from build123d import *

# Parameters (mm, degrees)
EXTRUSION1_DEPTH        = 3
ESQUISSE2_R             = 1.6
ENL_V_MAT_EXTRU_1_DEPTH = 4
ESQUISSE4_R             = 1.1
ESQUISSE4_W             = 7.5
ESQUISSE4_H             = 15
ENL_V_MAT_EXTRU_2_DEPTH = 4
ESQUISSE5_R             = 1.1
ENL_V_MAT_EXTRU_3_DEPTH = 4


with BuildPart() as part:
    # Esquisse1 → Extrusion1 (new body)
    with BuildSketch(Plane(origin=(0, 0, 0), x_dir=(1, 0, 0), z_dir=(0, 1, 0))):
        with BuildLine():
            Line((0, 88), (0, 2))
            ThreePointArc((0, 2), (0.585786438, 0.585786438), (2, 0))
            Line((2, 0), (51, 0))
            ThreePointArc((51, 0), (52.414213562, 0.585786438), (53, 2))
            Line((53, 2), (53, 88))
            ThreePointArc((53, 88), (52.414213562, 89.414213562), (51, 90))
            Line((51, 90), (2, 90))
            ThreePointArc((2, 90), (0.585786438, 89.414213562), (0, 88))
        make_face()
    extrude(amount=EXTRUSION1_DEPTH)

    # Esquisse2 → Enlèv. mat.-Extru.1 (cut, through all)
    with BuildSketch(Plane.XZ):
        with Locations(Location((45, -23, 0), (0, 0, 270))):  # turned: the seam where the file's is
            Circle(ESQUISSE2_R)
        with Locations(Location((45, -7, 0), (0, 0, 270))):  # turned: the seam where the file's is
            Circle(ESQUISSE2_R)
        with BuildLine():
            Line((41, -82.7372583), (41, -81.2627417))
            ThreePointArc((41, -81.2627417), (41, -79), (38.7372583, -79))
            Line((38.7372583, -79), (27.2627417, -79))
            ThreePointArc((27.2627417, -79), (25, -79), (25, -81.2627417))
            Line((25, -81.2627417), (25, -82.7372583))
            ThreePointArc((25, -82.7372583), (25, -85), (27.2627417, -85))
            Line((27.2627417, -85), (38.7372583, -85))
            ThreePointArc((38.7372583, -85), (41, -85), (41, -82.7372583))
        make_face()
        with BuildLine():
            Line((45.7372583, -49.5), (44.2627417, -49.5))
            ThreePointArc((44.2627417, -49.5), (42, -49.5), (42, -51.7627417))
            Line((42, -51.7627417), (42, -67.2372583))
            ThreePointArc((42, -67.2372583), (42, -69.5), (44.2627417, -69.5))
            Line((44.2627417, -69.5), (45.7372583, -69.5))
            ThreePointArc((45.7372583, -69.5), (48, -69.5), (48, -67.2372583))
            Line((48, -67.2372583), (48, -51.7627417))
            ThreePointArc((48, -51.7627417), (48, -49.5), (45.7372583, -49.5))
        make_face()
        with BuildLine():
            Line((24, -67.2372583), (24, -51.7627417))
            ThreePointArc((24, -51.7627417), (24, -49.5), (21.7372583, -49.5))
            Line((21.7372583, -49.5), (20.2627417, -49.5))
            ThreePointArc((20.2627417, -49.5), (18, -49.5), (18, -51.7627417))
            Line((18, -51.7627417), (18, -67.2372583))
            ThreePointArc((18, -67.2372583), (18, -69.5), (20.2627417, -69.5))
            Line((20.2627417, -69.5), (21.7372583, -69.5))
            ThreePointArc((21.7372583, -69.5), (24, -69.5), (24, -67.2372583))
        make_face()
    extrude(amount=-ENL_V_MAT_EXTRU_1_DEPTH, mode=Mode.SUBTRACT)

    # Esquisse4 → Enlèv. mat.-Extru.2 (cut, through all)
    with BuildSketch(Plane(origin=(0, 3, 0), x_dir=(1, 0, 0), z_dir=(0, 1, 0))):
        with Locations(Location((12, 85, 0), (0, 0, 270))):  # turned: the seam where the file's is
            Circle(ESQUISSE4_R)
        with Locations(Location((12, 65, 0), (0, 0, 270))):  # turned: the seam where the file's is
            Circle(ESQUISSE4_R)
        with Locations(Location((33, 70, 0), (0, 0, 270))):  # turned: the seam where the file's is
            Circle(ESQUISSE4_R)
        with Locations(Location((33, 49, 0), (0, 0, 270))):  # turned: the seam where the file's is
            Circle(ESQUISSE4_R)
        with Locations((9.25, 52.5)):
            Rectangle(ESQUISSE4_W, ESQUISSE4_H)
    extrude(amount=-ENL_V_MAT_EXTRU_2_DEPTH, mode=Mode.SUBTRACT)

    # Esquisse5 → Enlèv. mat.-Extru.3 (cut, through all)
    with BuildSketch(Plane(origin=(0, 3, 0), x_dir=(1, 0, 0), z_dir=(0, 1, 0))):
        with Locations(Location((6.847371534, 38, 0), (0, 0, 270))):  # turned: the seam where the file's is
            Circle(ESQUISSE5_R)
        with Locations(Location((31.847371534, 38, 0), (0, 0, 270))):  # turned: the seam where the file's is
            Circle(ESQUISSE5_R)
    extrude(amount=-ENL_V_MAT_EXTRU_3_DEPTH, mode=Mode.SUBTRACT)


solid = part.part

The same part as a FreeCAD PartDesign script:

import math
import FreeCAD as App
import Part
import Sketcher
from FreeCAD import Vector


def add_polygon(sketch, points):
    """Adds a closed chain of lines whose ends are joined by coincident constraints."""
    first, n = sketch.GeometryCount, len(points)
    for a, b in zip(points, points[1:] + points[:1]):
        sketch.addGeometry(Part.LineSegment(App.Vector(*a, 0), App.Vector(*b, 0)), False)
    for i in range(n):
        sketch.addConstraint(Sketcher.Constraint("Coincident", first + i, 2, first + (i + 1) % n, 1))

doc = App.newDocument("Part")
body = doc.addObject("PartDesign::Body", "Body")

sketch1 = body.newObject("Sketcher::SketchObject", "Sketch")
sketch1.AttachmentSupport = (doc.getObject("XZ_Plane"), [""])
sketch1.MapMode = "FlatFace"
sketch1.addGeometry([
    Part.LineSegment(Vector(0, -88, 0), Vector(0, -2, 0)),
    Part.ArcOfCircle(Part.Circle(Vector(2, -2, 0), Vector(0, 0, 1), 2), math.radians(90), math.radians(180)),
    Part.LineSegment(Vector(2, 0, 0), Vector(51, 0, 0)),
    Part.ArcOfCircle(Part.Circle(Vector(51, -2, 0), Vector(0, 0, 1), 2), math.radians(0), math.radians(90)),
    Part.LineSegment(Vector(53, -2, 0), Vector(53, -88, 0)),
    Part.ArcOfCircle(Part.Circle(Vector(51, -88, 0), Vector(0, 0, 1), 2), math.radians(-90), math.radians(0)),
    Part.LineSegment(Vector(51, -90, 0), Vector(2, -90, 0)),
    Part.ArcOfCircle(Part.Circle(Vector(2, -88, 0), Vector(0, 0, 1), 2), math.radians(-180), math.radians(-90)),
], False)
sketch1.addConstraint([
    Sketcher.Constraint("Tangent", 0, 2, 1, 2),
    Sketcher.Constraint("Tangent", 1, 1, 2, 1),
    Sketcher.Constraint("Tangent", 2, 2, 3, 2),
    Sketcher.Constraint("Tangent", 3, 1, 4, 1),
    Sketcher.Constraint("Tangent", 4, 2, 5, 2),
    Sketcher.Constraint("Tangent", 5, 1, 6, 1),
    Sketcher.Constraint("Tangent", 6, 2, 7, 2),
    Sketcher.Constraint("Tangent", 7, 1, 0, 1),
    Sketcher.Constraint("Vertical", 0),
    Sketcher.Constraint("Horizontal", 2),
    Sketcher.Constraint("Vertical", 4),
    Sketcher.Constraint("Horizontal", 6),
    Sketcher.Constraint("Equal", 1, 3),
    Sketcher.Constraint("Equal", 3, 5),
    Sketcher.Constraint("Equal", 5, 7),
    Sketcher.Constraint("PointOnObject", 0, 2, -2),
    Sketcher.Constraint("PointOnObject", 1, 1, -1),
    Sketcher.Constraint("Radius", 1, 2.0),
    Sketcher.Constraint("DistanceX", 2, 1, 2, 2, 49.0),
    Sketcher.Constraint("DistanceY", 0, 1, 0, 2, 86.0),
])
pad1 = body.newObject("PartDesign::Pad", "Pad")
pad1.Profile = sketch1
pad1.Length = 3
pad1.Reversed = True

sketch2 = body.newObject("Sketcher::SketchObject", "Sketch001")
sketch2.AttachmentSupport = (doc.getObject("XZ_Plane"), [""])
sketch2.MapMode = "FlatFace"
sketch2.addGeometry([
    Part.Circle(Vector(45, -23, 0), Vector(0, 0, 1), 1.6),
    Part.Circle(Vector(45, -7, 0), Vector(0, 0, 1), 1.6),
    Part.LineSegment(Vector(41, -82.7, 0), Vector(41, -81.3, 0)),
    Part.ArcOfCircle(Part.Circle(Vector(39.9, -80.1, 0), Vector(0, 0, 1), 1.6), math.radians(-45), math.radians(135)),
    Part.LineSegment(Vector(38.7, -79, 0), Vector(27.3, -79, 0)),
    Part.ArcOfCircle(Part.Circle(Vector(26.1, -80.1, 0), Vector(0, 0, 1), 1.6), math.radians(45), math.radians(225)),
    Part.LineSegment(Vector(25, -81.3, 0), Vector(25, -82.7, 0)),
    Part.ArcOfCircle(Part.Circle(Vector(26.1, -83.9, 0), Vector(0, 0, 1), 1.6), math.radians(135), math.radians(315)),
    Part.LineSegment(Vector(27.3, -85, 0), Vector(38.7, -85, 0)),
    Part.ArcOfCircle(Part.Circle(Vector(39.9, -83.9, 0), Vector(0, 0, 1), 1.6), math.radians(-135), math.radians(45)),
    Part.LineSegment(Vector(45.7, -49.5, 0), Vector(44.3, -49.5, 0)),
    Part.ArcOfCircle(Part.Circle(Vector(43.1, -50.6, 0), Vector(0, 0, 1), 1.6), math.radians(45), math.radians(225)),
    Part.LineSegment(Vector(42, -51.8, 0), Vector(42, -67.2, 0)),
    Part.ArcOfCircle(Part.Circle(Vector(43.1, -68.4, 0), Vector(0, 0, 1), 1.6), math.radians(135), math.radians(315)),
    Part.LineSegment(Vector(44.3, -69.5, 0), Vector(45.7, -69.5, 0)),
    Part.ArcOfCircle(Part.Circle(Vector(46.9, -68.4, 0), Vector(0, 0, 1), 1.6), math.radians(-135), math.radians(45)),
    Part.LineSegment(Vector(48, -67.2, 0), Vector(48, -51.8, 0)),
    Part.ArcOfCircle(Part.Circle(Vector(46.9, -50.6, 0), Vector(0, 0, 1), 1.6), math.radians(-45), math.radians(135)),
    Part.LineSegment(Vector(24, -67.2, 0), Vector(24, -51.8, 0)),
    Part.ArcOfCircle(Part.Circle(Vector(22.9, -50.6, 0), Vector(0, 0, 1), 1.6), math.radians(-45), math.radians(135)),
    Part.LineSegment(Vector(21.7, -49.5, 0), Vector(20.3, -49.5, 0)),
    Part.ArcOfCircle(Part.Circle(Vector(19.1, -50.6, 0), Vector(0, 0, 1), 1.6), math.radians(45), math.radians(225)),
    Part.LineSegment(Vector(18, -51.8, 0), Vector(18, -67.2, 0)),
    Part.ArcOfCircle(Part.Circle(Vector(19.1, -68.4, 0), Vector(0, 0, 1), 1.6), math.radians(135), math.radians(315)),
    Part.LineSegment(Vector(20.3, -69.5, 0), Vector(21.7, -69.5, 0)),
    Part.ArcOfCircle(Part.Circle(Vector(22.9, -68.4, 0), Vector(0, 0, 1), 1.6), math.radians(-135), math.radians(45)),
], False)
sketch2.addConstraint([
    Sketcher.Constraint("Coincident", 2, 2, 3, 1),
    Sketcher.Constraint("Coincident", 3, 2, 4, 1),
    Sketcher.Constraint("Coincident", 4, 2, 5, 1),
    Sketcher.Constraint("Coincident", 5, 2, 6, 1),
    Sketcher.Constraint("Coincident", 6, 2, 7, 1),
    Sketcher.Constraint("Coincident", 7, 2, 8, 1),
    Sketcher.Constraint("Coincident", 8, 2, 9, 1),
    Sketcher.Constraint("Coincident", 9, 2, 2, 1),
    Sketcher.Constraint("Coincident", 10, 2, 11, 1),
    Sketcher.Constraint("Coincident", 11, 2, 12, 1),
    Sketcher.Constraint("Coincident", 12, 2, 13, 1),
    Sketcher.Constraint("Coincident", 13, 2, 14, 1),
    Sketcher.Constraint("Coincident", 14, 2, 15, 1),
    Sketcher.Constraint("Coincident", 15, 2, 16, 1),
    Sketcher.Constraint("Coincident", 16, 2, 17, 1),
    Sketcher.Constraint("Coincident", 17, 2, 10, 1),
    Sketcher.Constraint("Coincident", 18, 2, 19, 1),
    Sketcher.Constraint("Coincident", 19, 2, 20, 1),
    Sketcher.Constraint("Coincident", 20, 2, 21, 1),
    Sketcher.Constraint("Coincident", 21, 2, 22, 1),
    Sketcher.Constraint("Coincident", 22, 2, 23, 1),
    Sketcher.Constraint("Coincident", 23, 2, 24, 1),
    Sketcher.Constraint("Coincident", 24, 2, 25, 1),
    Sketcher.Constraint("Coincident", 25, 2, 18, 1),
    Sketcher.Constraint("Vertical", 2),
    Sketcher.Constraint("Horizontal", 4),
    Sketcher.Constraint("Vertical", 6),
    Sketcher.Constraint("Horizontal", 8),
    Sketcher.Constraint("Horizontal", 10),
    Sketcher.Constraint("Vertical", 12),
    Sketcher.Constraint("Horizontal", 14),
    Sketcher.Constraint("Vertical", 16),
    Sketcher.Constraint("Vertical", 18),
    Sketcher.Constraint("Horizontal", 20),
    Sketcher.Constraint("Vertical", 22),
    Sketcher.Constraint("Horizontal", 24),
    Sketcher.Constraint("Equal", 0, 1),
    Sketcher.Constraint("Equal", 1, 3),
    Sketcher.Constraint("Equal", 3, 5),
    Sketcher.Constraint("Equal", 5, 7),
    Sketcher.Constraint("Equal", 7, 9),
    Sketcher.Constraint("Equal", 9, 11),
    Sketcher.Constraint("Equal", 11, 13),
    Sketcher.Constraint("Equal", 13, 15),
    Sketcher.Constraint("Equal", 15, 17),
    Sketcher.Constraint("Equal", 17, 19),
    Sketcher.Constraint("Equal", 19, 21),
    Sketcher.Constraint("Equal", 21, 23),
    Sketcher.Constraint("Equal", 23, 25),
    Sketcher.Constraint("Horizontal", 3, 3, 5, 3),
    Sketcher.Constraint("Horizontal", 7, 3, 9, 3),
    Sketcher.Constraint("Horizontal", 13, 3, 15, 3),
    Sketcher.Constraint("Horizontal", 11, 3, 17, 3),
    Sketcher.Constraint("Horizontal", 17, 3, 19, 3),
    Sketcher.Constraint("Horizontal", 19, 3, 21, 3),
    Sketcher.Constraint("Horizontal", 15, 3, 23, 3),
    Sketcher.Constraint("Horizontal", 23, 3, 25, 3),
    Sketcher.Constraint("Horizontal", 2, 2, 5, 2),
    Sketcher.Constraint("Horizontal", 6, 2, 9, 2),
    Sketcher.Constraint("Horizontal", 12, 2, 15, 2),
    Sketcher.Constraint("Horizontal", 11, 2, 16, 2),
    Sketcher.Constraint("Horizontal", 16, 2, 18, 2),
    Sketcher.Constraint("Horizontal", 17, 2, 19, 2),
    Sketcher.Constraint("Horizontal", 18, 2, 21, 2),
    Sketcher.Constraint("Horizontal", 15, 2, 22, 2),
    Sketcher.Constraint("Horizontal", 14, 2, 23, 2),
    Sketcher.Constraint("Horizontal", 22, 2, 25, 2),
    Sketcher.Constraint("Vertical", 0, 3, 1, 3),
    Sketcher.Constraint("Vertical", 5, 3, 7, 3),
    Sketcher.Constraint("Vertical", 11, 3, 13, 3),
    Sketcher.Constraint("Vertical", 4, 2, 7, 2),
    Sketcher.Constraint("Vertical", 10, 2, 13, 2),
    Sketcher.Constraint("Equal", 14, 20),
    Sketcher.Constraint("Equal", 24, 2),
    Sketcher.Constraint("Diameter", 0, 3.2),
    Sketcher.Constraint("DistanceX", -1, 1, 0, 3, 45.0),
    Sketcher.Constraint("DistanceY", 0, 3, -1, 1, 23.0),
    Sketcher.Constraint("DistanceY", 1, 3, -1, 1, 7.0),
    Sketcher.Constraint("DistanceX", -1, 1, 2, 2, 41.0),
    Sketcher.Constraint("DistanceY", 3, 2, -1, 1, 79.0),
    Sketcher.Constraint("DistanceX", -1, 1, 5, 2, 25.0),
    Sketcher.Constraint("DistanceY", 7, 2, -1, 1, 85.0),
    Sketcher.Constraint("DistanceX", -1, 1, 11, 2, 42.0),
    Sketcher.Constraint("DistanceX", -1, 1, 15, 2, 48.0),
    Sketcher.Constraint("DistanceX", -1, 1, 18, 2, 24.0),
    Sketcher.Constraint("DistanceX", 5, 3, 11, 3, 17.0),
    Sketcher.Constraint("DistanceX", 3, 2, 14, 2, 7.0),
    Sketcher.Constraint("DistanceY", 10, 2, -1, 1, 49.5),
    Sketcher.Constraint("DistanceY", 13, 2, -1, 1, 69.5),
    Sketcher.Constraint("DistanceX", -1, 1, 3, 3, 39.868629),
])
pocket1 = body.newObject("PartDesign::Pocket", "Pocket")
pocket1.Profile = sketch2
pocket1.Type = "ThroughAll"

sketch3 = body.newObject("Sketcher::SketchObject", "Sketch002")
sketch3.AttachmentSupport = (doc.getObject("XZ_Plane"), [""])
sketch3.MapMode = "FlatFace"
sketch3.AttachmentOffset = App.Placement(Vector(0, 0, -3), App.Rotation())
sketch3.addGeometry(Part.Circle(Vector(12, -85, 0), Vector(0, 0, 1), 1.1), False)
sketch3.addGeometry(Part.Circle(Vector(12, -65, 0), Vector(0, 0, 1), 1.1), False)
sketch3.addGeometry(Part.Circle(Vector(33, -70, 0), Vector(0, 0, 1), 1.1), False)
sketch3.addGeometry(Part.Circle(Vector(33, -49, 0), Vector(0, 0, 1), 1.1), False)
add_polygon(sketch3, [(5.5, -60), (5.5, -45), (13, -45), (13, -60)])
sketch3.addConstraint([
    Sketcher.Constraint("Vertical", 4),
    Sketcher.Constraint("Horizontal", 5),
    Sketcher.Constraint("Vertical", 6),
    Sketcher.Constraint("Horizontal", 7),
    Sketcher.Constraint("Equal", 0, 1),
    Sketcher.Constraint("Equal", 1, 2),
    Sketcher.Constraint("Equal", 2, 3),
    Sketcher.Constraint("Vertical", 0, 3, 1, 3),
    Sketcher.Constraint("Vertical", 2, 3, 3, 3),
    Sketcher.Constraint("Diameter", 0, 2.2),
    Sketcher.Constraint("DistanceY", 4, 1, 4, 2, 15.0),
    Sketcher.Constraint("DistanceX", 5, 1, 5, 2, 7.5),
    Sketcher.Constraint("DistanceX", -1, 1, 0, 3, 12.0),
    Sketcher.Constraint("DistanceY", 0, 3, -1, 1, 85.0),
    Sketcher.Constraint("DistanceY", 1, 3, -1, 1, 65.0),
    Sketcher.Constraint("DistanceX", -1, 1, 2, 3, 33.0),
    Sketcher.Constraint("DistanceY", 2, 3, -1, 1, 70.0),
    Sketcher.Constraint("DistanceY", 3, 3, -1, 1, 49.0),
    Sketcher.Constraint("DistanceY", 4, 2, -1, 1, 45.0),
    Sketcher.Constraint("DistanceX", -1, 1, 5, 2, 13.0),
])
pocket2 = body.newObject("PartDesign::Pocket", "Pocket001")
pocket2.Profile = sketch3
pocket2.Type = "ThroughAll"
pocket2.Reversed = True

sketch4 = body.newObject("Sketcher::SketchObject", "Sketch003")
sketch4.AttachmentSupport = (doc.getObject("XZ_Plane"), [""])
sketch4.MapMode = "FlatFace"
sketch4.AttachmentOffset = App.Placement(Vector(0, 0, -3), App.Rotation())
sketch4.addGeometry([
    Part.Circle(Vector(6.8, -38, 0), Vector(0, 0, 1), 1.1),
    Part.Circle(Vector(31.8, -38, 0), Vector(0, 0, 1), 1.1),
], False)
sketch4.addConstraint([
    Sketcher.Constraint("Equal", 0, 1),
    Sketcher.Constraint("Horizontal", 0, 3, 1, 3),
    Sketcher.Constraint("Diameter", 0, 2.2),
    Sketcher.Constraint("DistanceY", 0, 3, -1, 1, 38.0),
    Sketcher.Constraint("DistanceX", 0, 3, 1, 3, 25.0),
    Sketcher.Constraint("DistanceX", -1, 1, 0, 3, 6.847372),
])
pocket3 = body.newObject("PartDesign::Pocket", "Pocket002")
pocket3.Profile = sketch4
pocket3.Type = "ThroughAll"
pocket3.Reversed = True

doc.recompute()
